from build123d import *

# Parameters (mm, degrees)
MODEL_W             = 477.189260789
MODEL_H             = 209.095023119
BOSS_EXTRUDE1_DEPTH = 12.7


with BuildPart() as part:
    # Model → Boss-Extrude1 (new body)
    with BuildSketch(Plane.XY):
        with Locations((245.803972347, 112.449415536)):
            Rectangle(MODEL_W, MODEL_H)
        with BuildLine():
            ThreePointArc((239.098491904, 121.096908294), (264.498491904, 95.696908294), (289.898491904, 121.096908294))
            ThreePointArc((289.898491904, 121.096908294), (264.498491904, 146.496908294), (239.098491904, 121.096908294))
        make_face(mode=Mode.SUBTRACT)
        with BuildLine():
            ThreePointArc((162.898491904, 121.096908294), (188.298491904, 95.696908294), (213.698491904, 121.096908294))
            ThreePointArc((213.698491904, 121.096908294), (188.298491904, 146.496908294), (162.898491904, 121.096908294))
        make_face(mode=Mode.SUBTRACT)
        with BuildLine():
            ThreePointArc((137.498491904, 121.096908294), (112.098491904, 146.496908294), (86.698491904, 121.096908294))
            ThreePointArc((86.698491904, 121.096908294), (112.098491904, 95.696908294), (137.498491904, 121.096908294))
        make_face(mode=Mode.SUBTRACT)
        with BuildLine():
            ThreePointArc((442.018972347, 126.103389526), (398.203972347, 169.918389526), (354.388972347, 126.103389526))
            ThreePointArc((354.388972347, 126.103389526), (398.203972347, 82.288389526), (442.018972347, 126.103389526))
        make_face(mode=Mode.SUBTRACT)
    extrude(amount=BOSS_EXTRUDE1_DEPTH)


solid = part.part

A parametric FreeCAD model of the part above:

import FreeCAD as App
import Part
import Sketcher
from FreeCAD import Vector
Q = App.Units.Quantity


def add_polygon(sketch, points):
    """Adds a closed chain of lines whose ends are joined by coincident constraints."""
    first, n = sketch.GeometryCount, len(points)
    for a, b in zip(points, points[1:] + points[:1]):
        sketch.addGeometry(Part.LineSegment(App.Vector(*a, 0), App.Vector(*b, 0)), False)
    for i in range(n):
        sketch.addConstraint(Sketcher.Constraint("Coincident", first + i, 2, first + (i + 1) % n, 1))

doc = App.newDocument("Part")
body = doc.addObject("PartDesign::Body", "Body")

sketch1 = body.newObject("Sketcher::SketchObject", "Sketch")
sketch1.AttachmentSupport = (doc.getObject("XY_Plane"), [""])
sketch1.MapMode = "FlatFace"
add_polygon(sketch1, [(7, 217), (7, 8), (484, 8), (484, 217)])
sketch1.addGeometry(Part.Circle(Vector(112, 121, 0), Vector(0, 0, 1), 25), False)
sketch1.addGeometry(Part.Circle(Vector(188, 121, 0), Vector(0, 0, 1), 25), False)
sketch1.addGeometry(Part.Circle(Vector(264, 121, 0), Vector(0, 0, 1), 25), False)
sketch1.addGeometry(Part.Circle(Vector(398, 126, 0), Vector(0, 0, 1), 44), False)
sketch1.addConstraint([
    Sketcher.Constraint("Vertical", 0),
    Sketcher.Constraint("Horizontal", 1),
    Sketcher.Constraint("Vertical", 2),
    Sketcher.Constraint("Horizontal", 3),
    Sketcher.Constraint("Equal", 4, 5),
    Sketcher.Constraint("Equal", 5, 6),
    Sketcher.Constraint("Horizontal", 4, 3, 5, 3),
    Sketcher.Constraint("Horizontal", 5, 3, 6, 3),
    Sketcher.Constraint("Diameter", 4, Q("2 in")),
    Sketcher.Constraint("Diameter", 7, Q("3.45 in")),
    Sketcher.Constraint("DistanceX", 4, 3, 5, 3, Q("3 in")),
    Sketcher.Constraint("DistanceX", 5, 3, 6, 3, Q("3 in")),
    Sketcher.Constraint("DistanceX", 1, 1, 1, 2, Q("477.189261 mm")),
    Sketcher.Constraint("DistanceY", 0, 2, 0, 1, Q("209.095023 mm")),
    Sketcher.Constraint("DistanceX", -1, 1, 4, 3, Q("112.098492 mm")),
    Sketcher.Constraint("DistanceY", -1, 1, 4, 3, Q("121.096908 mm")),
    Sketcher.Constraint("DistanceY", -1, 1, 7, 3, Q("126.10339 mm")),
    Sketcher.Constraint("DistanceX", -1, 1, 0, 2, Q("7.209342 mm")),
    Sketcher.Constraint("DistanceX", 6, 3, 7, 3, Q("133.70548 mm")),
    Sketcher.Constraint("DistanceY", 6, 3, 2, 2, Q("95.900019 mm")),
])
pad1 = body.newObject("PartDesign::Pad", "Pad")
pad1.Profile = sketch1
pad1.Length = Q("0.5 in")

doc.recompute()
